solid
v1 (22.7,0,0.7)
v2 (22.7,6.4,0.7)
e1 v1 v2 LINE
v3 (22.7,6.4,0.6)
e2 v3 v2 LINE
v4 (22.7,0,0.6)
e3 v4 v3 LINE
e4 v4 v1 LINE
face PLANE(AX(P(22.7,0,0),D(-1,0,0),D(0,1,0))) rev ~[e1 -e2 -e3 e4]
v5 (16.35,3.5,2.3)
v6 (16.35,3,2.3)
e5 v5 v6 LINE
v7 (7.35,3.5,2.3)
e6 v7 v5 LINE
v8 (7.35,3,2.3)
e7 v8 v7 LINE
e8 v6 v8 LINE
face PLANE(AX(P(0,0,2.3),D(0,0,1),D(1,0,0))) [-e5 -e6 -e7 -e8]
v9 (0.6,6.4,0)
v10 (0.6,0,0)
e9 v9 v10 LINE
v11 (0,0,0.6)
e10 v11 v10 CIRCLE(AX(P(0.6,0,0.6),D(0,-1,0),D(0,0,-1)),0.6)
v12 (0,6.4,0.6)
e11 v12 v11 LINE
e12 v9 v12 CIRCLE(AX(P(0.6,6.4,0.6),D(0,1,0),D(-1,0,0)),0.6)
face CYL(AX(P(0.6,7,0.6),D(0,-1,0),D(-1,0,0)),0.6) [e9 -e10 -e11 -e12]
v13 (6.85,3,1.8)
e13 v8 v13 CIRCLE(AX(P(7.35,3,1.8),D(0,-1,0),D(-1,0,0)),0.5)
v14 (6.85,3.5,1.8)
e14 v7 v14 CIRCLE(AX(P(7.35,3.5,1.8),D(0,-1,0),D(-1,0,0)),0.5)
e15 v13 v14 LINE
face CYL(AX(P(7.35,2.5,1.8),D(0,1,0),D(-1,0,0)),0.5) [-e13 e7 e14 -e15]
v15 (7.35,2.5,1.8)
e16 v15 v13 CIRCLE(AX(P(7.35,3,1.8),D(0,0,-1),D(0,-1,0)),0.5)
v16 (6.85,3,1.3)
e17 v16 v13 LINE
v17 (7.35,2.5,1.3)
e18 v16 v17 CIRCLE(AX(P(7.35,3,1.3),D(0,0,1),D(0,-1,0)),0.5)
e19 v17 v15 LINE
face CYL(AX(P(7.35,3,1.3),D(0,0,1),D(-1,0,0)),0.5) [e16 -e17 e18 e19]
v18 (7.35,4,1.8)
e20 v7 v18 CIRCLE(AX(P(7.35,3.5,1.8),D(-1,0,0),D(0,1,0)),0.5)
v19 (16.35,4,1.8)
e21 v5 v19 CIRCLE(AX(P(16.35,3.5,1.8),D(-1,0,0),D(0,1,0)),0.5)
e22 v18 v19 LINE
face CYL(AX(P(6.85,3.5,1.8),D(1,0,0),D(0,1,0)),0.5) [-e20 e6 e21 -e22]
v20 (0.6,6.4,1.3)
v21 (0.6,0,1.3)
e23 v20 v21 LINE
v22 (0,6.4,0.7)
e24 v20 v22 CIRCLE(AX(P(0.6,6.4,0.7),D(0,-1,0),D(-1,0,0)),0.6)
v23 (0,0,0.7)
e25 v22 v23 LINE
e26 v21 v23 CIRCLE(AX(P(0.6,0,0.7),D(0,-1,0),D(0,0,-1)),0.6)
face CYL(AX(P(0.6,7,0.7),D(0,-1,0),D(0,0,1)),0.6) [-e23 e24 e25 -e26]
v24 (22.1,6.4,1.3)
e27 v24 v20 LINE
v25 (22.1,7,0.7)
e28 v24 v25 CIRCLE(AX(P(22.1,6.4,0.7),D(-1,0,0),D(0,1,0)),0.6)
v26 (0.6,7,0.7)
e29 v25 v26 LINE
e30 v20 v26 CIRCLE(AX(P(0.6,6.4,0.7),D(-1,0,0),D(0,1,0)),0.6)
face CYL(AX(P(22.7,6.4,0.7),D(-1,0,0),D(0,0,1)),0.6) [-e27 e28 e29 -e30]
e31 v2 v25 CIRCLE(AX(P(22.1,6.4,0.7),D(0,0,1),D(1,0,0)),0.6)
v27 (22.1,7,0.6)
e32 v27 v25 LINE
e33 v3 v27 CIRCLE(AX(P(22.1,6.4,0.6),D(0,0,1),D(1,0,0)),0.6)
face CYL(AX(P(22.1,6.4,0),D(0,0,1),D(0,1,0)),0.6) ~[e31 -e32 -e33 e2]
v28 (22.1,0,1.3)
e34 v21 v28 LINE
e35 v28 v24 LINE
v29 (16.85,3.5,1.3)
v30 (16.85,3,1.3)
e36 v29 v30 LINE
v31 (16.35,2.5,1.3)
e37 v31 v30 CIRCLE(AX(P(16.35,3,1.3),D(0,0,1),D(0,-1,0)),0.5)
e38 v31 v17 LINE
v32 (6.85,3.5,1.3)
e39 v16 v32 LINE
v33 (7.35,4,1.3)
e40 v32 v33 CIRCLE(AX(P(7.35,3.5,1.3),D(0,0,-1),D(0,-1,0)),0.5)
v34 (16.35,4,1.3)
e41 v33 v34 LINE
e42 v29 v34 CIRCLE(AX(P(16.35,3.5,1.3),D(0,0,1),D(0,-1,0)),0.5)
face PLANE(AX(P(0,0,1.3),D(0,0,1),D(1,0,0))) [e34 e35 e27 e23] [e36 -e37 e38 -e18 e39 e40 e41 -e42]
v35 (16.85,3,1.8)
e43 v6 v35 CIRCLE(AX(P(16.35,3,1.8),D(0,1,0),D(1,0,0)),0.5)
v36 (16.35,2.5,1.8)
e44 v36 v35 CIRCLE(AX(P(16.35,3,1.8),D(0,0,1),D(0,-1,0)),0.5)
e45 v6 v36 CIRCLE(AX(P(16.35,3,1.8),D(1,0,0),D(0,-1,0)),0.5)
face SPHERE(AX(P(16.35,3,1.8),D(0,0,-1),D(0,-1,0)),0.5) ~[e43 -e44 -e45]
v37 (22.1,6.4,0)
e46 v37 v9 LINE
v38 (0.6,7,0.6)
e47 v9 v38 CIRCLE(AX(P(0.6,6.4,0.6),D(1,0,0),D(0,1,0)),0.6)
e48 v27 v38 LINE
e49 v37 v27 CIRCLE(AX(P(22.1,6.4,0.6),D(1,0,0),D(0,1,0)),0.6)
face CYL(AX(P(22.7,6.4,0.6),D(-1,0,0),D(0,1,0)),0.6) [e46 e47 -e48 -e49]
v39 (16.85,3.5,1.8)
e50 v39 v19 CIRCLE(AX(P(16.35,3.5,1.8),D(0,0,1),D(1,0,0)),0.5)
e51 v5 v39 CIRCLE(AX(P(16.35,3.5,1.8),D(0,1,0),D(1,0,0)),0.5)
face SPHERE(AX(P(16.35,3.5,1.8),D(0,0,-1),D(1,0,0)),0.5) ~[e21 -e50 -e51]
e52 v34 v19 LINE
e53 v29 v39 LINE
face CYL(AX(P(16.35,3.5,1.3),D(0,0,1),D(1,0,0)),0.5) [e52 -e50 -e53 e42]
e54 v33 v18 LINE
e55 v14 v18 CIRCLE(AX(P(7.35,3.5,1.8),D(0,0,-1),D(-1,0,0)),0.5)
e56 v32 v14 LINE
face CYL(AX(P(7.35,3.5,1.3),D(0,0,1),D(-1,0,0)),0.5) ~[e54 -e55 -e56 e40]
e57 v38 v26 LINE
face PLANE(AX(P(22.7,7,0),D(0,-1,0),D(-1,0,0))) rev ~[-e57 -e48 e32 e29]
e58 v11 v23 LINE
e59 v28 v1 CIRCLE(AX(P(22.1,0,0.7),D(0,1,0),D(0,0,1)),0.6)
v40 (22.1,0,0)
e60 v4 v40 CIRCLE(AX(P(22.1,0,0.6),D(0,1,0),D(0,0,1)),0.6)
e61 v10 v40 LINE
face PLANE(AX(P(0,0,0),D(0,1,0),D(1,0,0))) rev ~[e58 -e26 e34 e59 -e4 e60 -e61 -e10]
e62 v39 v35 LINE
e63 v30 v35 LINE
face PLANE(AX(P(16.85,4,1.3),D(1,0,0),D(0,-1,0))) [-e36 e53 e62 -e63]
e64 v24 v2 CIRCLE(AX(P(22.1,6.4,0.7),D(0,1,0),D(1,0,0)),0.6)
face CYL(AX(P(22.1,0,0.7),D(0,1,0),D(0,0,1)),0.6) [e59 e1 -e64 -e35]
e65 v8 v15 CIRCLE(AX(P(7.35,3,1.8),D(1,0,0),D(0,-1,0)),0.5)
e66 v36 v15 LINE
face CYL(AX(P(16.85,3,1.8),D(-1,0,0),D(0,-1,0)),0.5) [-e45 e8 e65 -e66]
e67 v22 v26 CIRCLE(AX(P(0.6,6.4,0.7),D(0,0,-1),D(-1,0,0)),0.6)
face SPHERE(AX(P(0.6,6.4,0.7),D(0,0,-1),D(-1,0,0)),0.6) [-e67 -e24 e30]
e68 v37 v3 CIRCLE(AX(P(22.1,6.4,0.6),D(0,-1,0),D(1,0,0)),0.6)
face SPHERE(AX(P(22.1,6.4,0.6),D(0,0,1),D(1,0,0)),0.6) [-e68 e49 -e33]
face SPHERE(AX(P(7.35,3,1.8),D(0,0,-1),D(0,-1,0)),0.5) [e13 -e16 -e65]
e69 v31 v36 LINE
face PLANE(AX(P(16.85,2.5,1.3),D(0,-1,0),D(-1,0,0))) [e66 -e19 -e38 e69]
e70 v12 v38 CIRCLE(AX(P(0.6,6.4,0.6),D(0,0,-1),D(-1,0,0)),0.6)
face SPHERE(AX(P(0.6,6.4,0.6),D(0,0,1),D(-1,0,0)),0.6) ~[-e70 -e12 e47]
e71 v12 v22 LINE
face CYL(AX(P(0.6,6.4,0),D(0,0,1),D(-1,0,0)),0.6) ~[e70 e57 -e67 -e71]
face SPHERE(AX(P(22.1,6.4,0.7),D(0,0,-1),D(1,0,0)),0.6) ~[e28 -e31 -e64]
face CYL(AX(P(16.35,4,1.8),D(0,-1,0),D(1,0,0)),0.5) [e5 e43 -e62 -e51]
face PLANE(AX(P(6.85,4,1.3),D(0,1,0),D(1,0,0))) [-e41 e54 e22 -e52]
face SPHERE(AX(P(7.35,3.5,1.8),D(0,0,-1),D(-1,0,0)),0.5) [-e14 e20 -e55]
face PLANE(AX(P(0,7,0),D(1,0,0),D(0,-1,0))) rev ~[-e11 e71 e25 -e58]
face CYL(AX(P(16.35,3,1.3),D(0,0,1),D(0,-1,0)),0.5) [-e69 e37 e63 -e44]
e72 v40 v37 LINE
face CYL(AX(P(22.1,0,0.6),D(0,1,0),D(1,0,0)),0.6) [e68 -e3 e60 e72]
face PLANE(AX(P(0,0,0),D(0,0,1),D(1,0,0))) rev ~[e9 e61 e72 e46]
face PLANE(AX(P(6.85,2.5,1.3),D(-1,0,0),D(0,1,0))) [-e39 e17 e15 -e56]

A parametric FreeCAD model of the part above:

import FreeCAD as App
import Part
import Sketcher


def edges_at(feature, points):
    """Names of the edges that pass closest to the given points."""
    edges = feature.Shape.Edges
    near = lambda p: min(range(len(edges)), key=lambda i: edges[i].distToShape(Part.Vertex(*p))[0])
    return sorted({f"Edge{near(p) + 1}" for p in points})


def add_polygon(sketch, points):
    """Adds a closed chain of lines whose ends are joined by coincident constraints."""
    first, n = sketch.GeometryCount, len(points)
    for a, b in zip(points, points[1:] + points[:1]):
        sketch.addGeometry(Part.LineSegment(App.Vector(*a, 0), App.Vector(*b, 0)), False)
    for i in range(n):
        sketch.addConstraint(Sketcher.Constraint("Coincident", first + i, 2, first + (i + 1) % n, 1))

doc = App.newDocument("Part")
body = doc.addObject("PartDesign::Body", "Body")

sketch1 = doc.addObject("Sketcher::SketchObject", "Sketch")
body.addObject(sketch1)
sketch1.AttachmentSupport = (doc.XY_Plane, [""])
sketch1.MapMode = "FlatFace"
add_polygon(sketch1, [(0, 7), (0, 0), (23, 0), (23, 7)])
sketch1.addConstraint(Sketcher.Constraint("Vertical", 0))
sketch1.addConstraint(Sketcher.Constraint("Horizontal", 1))
sketch1.addConstraint(Sketcher.Constraint("Vertical", 2))
sketch1.addConstraint(Sketcher.Constraint("Horizontal", 3))
sketch1.addConstraint(Sketcher.Constraint("Coincident", 0, 2, -1, 1))
sketch1.addConstraint(Sketcher.Constraint("DistanceY", 0, 2, 0, 1, 7.0))
sketch1.addConstraint(Sketcher.Constraint("DistanceX", 1, 1, 1, 2, 22.7))
pad1 = doc.addObject("PartDesign::Pad", "Pad")
body.addObject(pad1)
pad1.Profile = sketch1
pad1.Length = 1.3

sketch2 = doc.addObject("Sketcher::SketchObject", "Sketch001")
body.addObject(sketch2)
sketch2.AttachmentSupport = (doc.XY_Plane, [""])
sketch2.MapMode = "FlatFace"
sketch2.AttachmentOffset = App.Placement(App.Vector(0, 0, 1.3), App.Rotation())
add_polygon(sketch2, [(16.9, 4), (6.8, 4), (6.8, 2.5), (16.9, 2.5)])
sketch2.addConstraint(Sketcher.Constraint("Horizontal", 0))
sketch2.addConstraint(Sketcher.Constraint("Vertical", 1))
sketch2.addConstraint(Sketcher.Constraint("Horizontal", 2))
sketch2.addConstraint(Sketcher.Constraint("Vertical", 3))
sketch2.addConstraint(Sketcher.Constraint("DistanceX", 0, 2, 0, 1, 10.0))
sketch2.addConstraint(Sketcher.Constraint("DistanceY", 1, 2, 1, 1, 1.5))
sketch2.addConstraint(Sketcher.Constraint("DistanceY", -1, 1, 1, 2, 2.5))
sketch2.addConstraint(Sketcher.Constraint("DistanceX", -1, 1, 0, 2, 6.85))
pad2 = doc.addObject("PartDesign::Pad", "Pad001")
body.addObject(pad2)
pad2.Profile = sketch2
pad2.Length = 1
doc.recompute()

fillet = doc.addObject("PartDesign::Fillet", "Fillet")
body.addObject(fillet)
fillet.Base = (pad2, edges_at(pad2, [
    (16.85, 4, 1.8),
    (16.85, 2.5, 1.8),
    (6.85, 4, 1.8),
    (6.85, 2.5, 1.8),
    (11.85, 2.5, 2.3),
    (16.85, 3.25, 2.3),
    (6.85, 3.25, 2.3),
    (11.85, 4, 2.3),
]))
fillet.Radius = 0.5
doc.recompute()

fillet2 = doc.addObject("PartDesign::Fillet", "Fillet001")
body.addObject(fillet2)
fillet2.Base = (fillet, edges_at(fillet, [
    (0, 7, 0.65),
    (22.7, 7, 0.65),
    (0, 3.5, 1.3),
    (0, 3.5, 0),
    (22.7, 3.5, 1.3),
    (22.7, 3.5, 0),
    (11.35, 7, 1.3),
    (11.35, 7, 0),
]))
fillet2.Radius = 0.6

doc.recompute()
